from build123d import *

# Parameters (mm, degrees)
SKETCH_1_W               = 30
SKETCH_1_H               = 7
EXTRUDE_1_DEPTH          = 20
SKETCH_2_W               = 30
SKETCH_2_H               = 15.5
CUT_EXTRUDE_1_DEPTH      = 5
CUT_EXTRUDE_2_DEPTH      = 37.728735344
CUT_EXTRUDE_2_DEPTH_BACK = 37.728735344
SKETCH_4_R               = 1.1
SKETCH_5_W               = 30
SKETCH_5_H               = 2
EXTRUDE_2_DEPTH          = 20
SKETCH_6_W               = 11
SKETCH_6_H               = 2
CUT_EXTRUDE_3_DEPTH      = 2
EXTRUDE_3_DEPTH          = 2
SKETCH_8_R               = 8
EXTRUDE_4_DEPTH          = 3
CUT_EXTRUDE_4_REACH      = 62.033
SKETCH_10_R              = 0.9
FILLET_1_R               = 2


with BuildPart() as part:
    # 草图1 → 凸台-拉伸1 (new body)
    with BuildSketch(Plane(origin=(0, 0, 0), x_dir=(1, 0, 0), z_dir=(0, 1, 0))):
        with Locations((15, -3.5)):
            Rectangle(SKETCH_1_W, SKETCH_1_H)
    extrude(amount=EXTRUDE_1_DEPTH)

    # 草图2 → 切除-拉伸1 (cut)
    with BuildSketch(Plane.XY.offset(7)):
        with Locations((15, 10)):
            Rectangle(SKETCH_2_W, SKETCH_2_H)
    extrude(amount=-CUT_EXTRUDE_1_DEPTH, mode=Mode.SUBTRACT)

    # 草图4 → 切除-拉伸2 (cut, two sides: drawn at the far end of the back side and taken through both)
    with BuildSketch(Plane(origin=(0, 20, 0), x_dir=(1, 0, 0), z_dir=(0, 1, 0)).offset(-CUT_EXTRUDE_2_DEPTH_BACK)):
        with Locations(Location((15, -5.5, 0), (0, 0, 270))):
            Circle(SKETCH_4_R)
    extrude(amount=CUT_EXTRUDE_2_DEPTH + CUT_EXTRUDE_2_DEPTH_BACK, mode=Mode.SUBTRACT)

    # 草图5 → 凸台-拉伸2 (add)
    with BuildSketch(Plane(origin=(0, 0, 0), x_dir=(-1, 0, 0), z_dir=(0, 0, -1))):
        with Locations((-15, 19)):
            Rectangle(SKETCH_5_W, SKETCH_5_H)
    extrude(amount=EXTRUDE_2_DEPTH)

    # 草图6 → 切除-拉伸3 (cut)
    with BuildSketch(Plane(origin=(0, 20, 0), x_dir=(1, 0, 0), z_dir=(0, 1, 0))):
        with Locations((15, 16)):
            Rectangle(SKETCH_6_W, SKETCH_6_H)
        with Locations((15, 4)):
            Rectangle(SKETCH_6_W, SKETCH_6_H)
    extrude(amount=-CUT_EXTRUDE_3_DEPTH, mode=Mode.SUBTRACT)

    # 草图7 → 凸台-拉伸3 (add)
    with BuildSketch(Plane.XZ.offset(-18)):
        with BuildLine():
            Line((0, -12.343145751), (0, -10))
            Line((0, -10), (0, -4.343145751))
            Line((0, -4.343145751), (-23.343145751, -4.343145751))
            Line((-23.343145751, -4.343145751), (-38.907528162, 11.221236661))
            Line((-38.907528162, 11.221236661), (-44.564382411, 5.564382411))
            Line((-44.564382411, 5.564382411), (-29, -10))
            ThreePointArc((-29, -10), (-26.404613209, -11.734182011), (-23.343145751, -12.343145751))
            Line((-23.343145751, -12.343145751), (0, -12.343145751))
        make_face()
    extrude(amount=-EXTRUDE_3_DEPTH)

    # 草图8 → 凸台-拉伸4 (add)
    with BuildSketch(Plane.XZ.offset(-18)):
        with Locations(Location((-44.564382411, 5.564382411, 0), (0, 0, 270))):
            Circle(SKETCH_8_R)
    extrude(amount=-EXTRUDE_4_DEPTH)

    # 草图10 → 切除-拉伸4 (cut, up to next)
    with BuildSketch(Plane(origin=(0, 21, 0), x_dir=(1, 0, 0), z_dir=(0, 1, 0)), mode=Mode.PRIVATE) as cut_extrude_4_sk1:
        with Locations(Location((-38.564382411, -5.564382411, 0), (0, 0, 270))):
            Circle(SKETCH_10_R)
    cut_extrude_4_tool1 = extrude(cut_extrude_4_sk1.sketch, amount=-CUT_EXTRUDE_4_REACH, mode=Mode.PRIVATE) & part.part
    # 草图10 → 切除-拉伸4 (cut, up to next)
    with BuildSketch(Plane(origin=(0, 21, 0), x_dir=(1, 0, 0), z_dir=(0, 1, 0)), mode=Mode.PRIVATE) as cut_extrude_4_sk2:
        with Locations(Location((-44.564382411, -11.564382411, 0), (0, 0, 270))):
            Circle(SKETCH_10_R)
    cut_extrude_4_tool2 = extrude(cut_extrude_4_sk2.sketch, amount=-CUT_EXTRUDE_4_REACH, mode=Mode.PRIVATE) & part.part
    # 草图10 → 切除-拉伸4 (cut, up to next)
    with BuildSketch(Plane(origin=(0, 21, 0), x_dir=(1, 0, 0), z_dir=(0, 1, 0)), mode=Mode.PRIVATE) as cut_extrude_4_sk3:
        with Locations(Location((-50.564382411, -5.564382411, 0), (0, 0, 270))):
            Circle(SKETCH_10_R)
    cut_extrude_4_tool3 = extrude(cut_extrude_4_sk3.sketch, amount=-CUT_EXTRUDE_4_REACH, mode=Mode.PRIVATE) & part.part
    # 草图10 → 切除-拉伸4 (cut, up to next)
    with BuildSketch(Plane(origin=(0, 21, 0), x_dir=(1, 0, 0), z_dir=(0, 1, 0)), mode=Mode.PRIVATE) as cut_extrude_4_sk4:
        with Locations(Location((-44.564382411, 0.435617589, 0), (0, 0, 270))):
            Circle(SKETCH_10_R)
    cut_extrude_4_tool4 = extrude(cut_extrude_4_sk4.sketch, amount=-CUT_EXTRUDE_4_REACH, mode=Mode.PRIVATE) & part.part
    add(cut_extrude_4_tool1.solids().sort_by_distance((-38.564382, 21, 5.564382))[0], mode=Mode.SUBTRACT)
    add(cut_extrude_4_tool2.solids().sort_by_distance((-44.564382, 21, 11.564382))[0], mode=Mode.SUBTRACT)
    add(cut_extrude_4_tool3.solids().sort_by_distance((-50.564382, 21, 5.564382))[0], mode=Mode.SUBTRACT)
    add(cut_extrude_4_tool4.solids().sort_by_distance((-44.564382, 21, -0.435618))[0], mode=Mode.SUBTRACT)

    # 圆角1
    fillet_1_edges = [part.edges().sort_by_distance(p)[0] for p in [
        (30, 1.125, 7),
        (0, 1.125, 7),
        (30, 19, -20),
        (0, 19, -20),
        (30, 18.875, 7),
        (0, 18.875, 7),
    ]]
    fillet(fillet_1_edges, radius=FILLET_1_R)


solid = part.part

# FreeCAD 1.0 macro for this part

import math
import FreeCAD as App
import Part
import Sketcher
Q = App.Units.Quantity


def edges_at(feature, points):
    """Names of the edges that pass closest to the given points."""
    edges = feature.Shape.Edges
    near = lambda p: min(range(len(edges)), key=lambda i: edges[i].distToShape(Part.Vertex(*p))[0])
    return sorted({f"Edge{near(p) + 1}" for p in points})


def add_polygon(sketch, points):
    """Adds a closed chain of lines whose ends are joined by coincident constraints."""
    first, n = sketch.GeometryCount, len(points)
    for a, b in zip(points, points[1:] + points[:1]):
        sketch.addGeometry(Part.LineSegment(App.Vector(*a, 0), App.Vector(*b, 0)), False)
    for i in range(n):
        sketch.addConstraint(Sketcher.Constraint("Coincident", first + i, 2, first + (i + 1) % n, 1))

doc = App.newDocument("Part")
body = doc.addObject("PartDesign::Body", "Body")

# Sketch on XZ plane
sketch1 = body.newObject("Sketcher::SketchObject", "Sketch")
sketch1.AttachmentSupport = (doc.getObject("XZ_Plane"), [""])
sketch1.MapMode = "FlatFace"
add_polygon(sketch1, [(0, 0), (0, 7), (30, 7), (30, 0)])  # lines 0-3
sketch1.addConstraint([
    Sketcher.Constraint("Vertical", 0),
    Sketcher.Constraint("Horizontal", 1),
    Sketcher.Constraint("Vertical", 2),
    Sketcher.Constraint("Horizontal", 3),
    Sketcher.Constraint("Coincident", 3, 2, -1, 1),
    Sketcher.Constraint("DistanceX", 1, 1, 1, 2, 30.0),
    Sketcher.Constraint("DistanceY", 0, 1, 0, 2, 7.0),
])
pad1 = body.newObject("PartDesign::Pad", "Pad")
pad1.Profile = sketch1
pad1.Length = 20
pad1.Reversed = True

# Sketch on XY plane
sketch2 = body.newObject("Sketcher::SketchObject", "Sketch001")
sketch2.AttachmentSupport = (doc.getObject("XY_Plane"), [""])
sketch2.MapMode = "FlatFace"
sketch2.AttachmentOffset = App.Placement(App.Vector(0, 0, 7), App.Rotation())
add_polygon(sketch2, [(0, 17.75), (0, 2.25), (30, 2.25), (30, 17.75)])  # lines 0-3
sketch2.addConstraint([
    Sketcher.Constraint("Vertical", 0),
    Sketcher.Constraint("Horizontal", 1),
    Sketcher.Constraint("Vertical", 2),
    Sketcher.Constraint("Horizontal", 3),
    Sketcher.Constraint("PointOnObject", 0, 2, -2),
    Sketcher.Constraint("DistanceX", 1, 1, 1, 2, 30.0),
    Sketcher.Constraint("DistanceY", 0, 2, 0, 1, 15.5),
    Sketcher.Constraint("DistanceY", -1, 1, 0, 2, 2.25),
])
pocket1 = body.newObject("PartDesign::Pocket", "Pocket")
pocket1.Profile = sketch2
pocket1.Length = 5

# Sketch on XZ plane
sketch3 = body.newObject("Sketcher::SketchObject", "Sketch002")
sketch3.AttachmentSupport = (doc.getObject("XZ_Plane"), [""])
sketch3.MapMode = "FlatFace"
sketch3.AttachmentOffset = App.Placement(App.Vector(0, 0, -20), App.Rotation())
sketch3.addGeometry(Part.Circle(App.Vector(15, 5.5, 0), App.Vector(0, 0, 1), 1.1), False)
sketch3.addConstraint([
    Sketcher.Constraint("Diameter", 0, 2.2),
    Sketcher.Constraint("DistanceX", -1, 1, 0, 3, 15.0),
    Sketcher.Constraint("DistanceY", -1, 1, 0, 3, 5.5),
])
pocket2 = body.newObject("PartDesign::Pocket", "Pocket001")
pocket2.Profile = sketch3
pocket2.Type = "ThroughAll"
pocket2.Midplane = True

# Sketch on XY plane
sketch4 = body.newObject("Sketcher::SketchObject", "Sketch003")
sketch4.AttachmentSupport = (doc.getObject("XY_Plane"), [""])
sketch4.MapMode = "FlatFace"
add_polygon(sketch4, [(30, 20), (30, 18), (0, 18), (0, 20)])  # lines 0-3
sketch4.addConstraint([
    Sketcher.Constraint("Vertical", 0),
    Sketcher.Constraint("Horizontal", 1),
    Sketcher.Constraint("Vertical", 2),
    Sketcher.Constraint("Horizontal", 3),
    Sketcher.Constraint("PointOnObject", 1, 2, -2),
    Sketcher.Constraint("DistanceX", 1, 2, 1, 1, 30.0),
    Sketcher.Constraint("DistanceY", 0, 2, 0, 1, 2.0),
    Sketcher.Constraint("DistanceY", -1, 1, 0, 2, 18.0),
])
pad2 = body.newObject("PartDesign::Pad", "Pad001")
pad2.Profile = sketch4
pad2.Length = 20
pad2.Reversed = True

# Sketch on XZ plane
sketch5 = body.newObject("Sketcher::SketchObject", "Sketch004")
sketch5.AttachmentSupport = (doc.getObject("XZ_Plane"), [""])
sketch5.MapMode = "FlatFace"
sketch5.AttachmentOffset = App.Placement(App.Vector(0, 0, -20), App.Rotation())
add_polygon(sketch5, [(9.5, -17), (9.5, -15), (20.5, -15), (20.5, -17)])  # lines 0-3
add_polygon(sketch5, [(9.5, -5), (9.5, -3), (20.5, -3), (20.5, -5)])  # lines 4-7
sketch5.addConstraint([
    Sketcher.Constraint("Vertical", 0),
    Sketcher.Constraint("Horizontal", 1),
    Sketcher.Constraint("Vertical", 2),
    Sketcher.Constraint("Horizontal", 3),
    Sketcher.Constraint("Vertical", 4),
    Sketcher.Constraint("Horizontal", 5),
    Sketcher.Constraint("Vertical", 6),
    Sketcher.Constraint("Horizontal", 7),
    Sketcher.Constraint("Vertical", 3, 2, 4, 2),
    Sketcher.Constraint("Vertical", 2, 2, 5, 2),
    Sketcher.Constraint("Equal", 2, 4),
    Sketcher.Constraint("DistanceX", 1, 1, 1, 2, 11.0),
    Sketcher.Constraint("DistanceY", 0, 1, 0, 2, 2.0),
    Sketcher.Constraint("DistanceY", 0, 2, -1, 1, 15.0),
    Sketcher.Constraint("DistanceY", 4, 2, -1, 1, 3.0),
    Sketcher.Constraint("DistanceX", -1, 1, 0, 2, 9.5),
])
pocket3 = body.newObject("PartDesign::Pocket", "Pocket002")
pocket3.Profile = sketch5
pocket3.Length = 2
pocket3.Reversed = True

# Sketch on XZ plane
sketch6 = body.newObject("Sketcher::SketchObject", "Sketch005")
sketch6.AttachmentSupport = (doc.getObject("XZ_Plane"), [""])
sketch6.MapMode = "FlatFace"
sketch6.AttachmentOffset = App.Placement(App.Vector(0, 0, -18), App.Rotation())
sketch6.addGeometry([
    Part.LineSegment(App.Vector(0, -12.343146, 0), App.Vector(0, -4.343146, 0)),  # 0
    Part.LineSegment(App.Vector(0, -4.343146, 0), App.Vector(-23.343146, -4.343146, 0)),  # 1
    Part.LineSegment(App.Vector(-23.343146, -4.343146, 0), App.Vector(-38.907528, 11.221237, 0)),  # 2
    Part.LineSegment(App.Vector(-38.907528, 11.221237, 0), App.Vector(-44.564382, 5.564382, 0)),  # 3
    Part.LineSegment(App.Vector(-44.564382, 5.564382, 0), App.Vector(-29, -10, 0)),  # 4
    Part.ArcOfCircle(Part.Circle(App.Vector(-23.343146, -4.343146, 0), App.Vector(0, 0, 1), 8), math.radians(-135), math.radians(-90)),  # 5
    Part.LineSegment(App.Vector(-23.343146, -12.343146, 0), App.Vector(0, -12.343146, 0)),  # 6
], False)
sketch6.addConstraint([
    Sketcher.Constraint("Coincident", 0, 2, 1, 1),
    Sketcher.Constraint("Coincident", 1, 2, 2, 1),
    Sketcher.Constraint("Coincident", 2, 2, 3, 1),
    Sketcher.Constraint("Coincident", 3, 2, 4, 1),
    Sketcher.Constraint("Tangent", 4, 2, 5, 1),
    Sketcher.Constraint("Tangent", 5, 2, 6, 1),
    Sketcher.Constraint("Coincident", 6, 2, 0, 1),
    Sketcher.Constraint("Vertical", 0),
    Sketcher.Constraint("Horizontal", 1),
    Sketcher.Constraint("Horizontal", 6),
    Sketcher.Constraint("Coincident", 1, 2, 5, 3),
    Sketcher.Constraint("PointOnObject", 0, 2, -2),
    Sketcher.Constraint("Perpendicular", 2, 3),
    Sketcher.Constraint("Perpendicular", 3, 4),
    Sketcher.Constraint("Radius", 5, 8.0),
    Sketcher.Constraint("Angle", 2, Q("135 deg")),
    Sketcher.Constraint("DistanceX", 4, 2, -1, 1, 29.0),
    Sketcher.Constraint("DistanceY", 4, 2, -1, 1, 10.0),
    Sketcher.Constraint("Distance", 2, 22.011361),
])
pad3 = body.newObject("PartDesign::Pad", "Pad002")
pad3.Profile = sketch6
pad3.Length = 2
pad3.Reversed = True

# Sketch on XZ plane
sketch7 = body.newObject("Sketcher::SketchObject", "Sketch006")
sketch7.AttachmentSupport = (doc.getObject("XZ_Plane"), [""])
sketch7.MapMode = "FlatFace"
sketch7.AttachmentOffset = App.Placement(App.Vector(0, 0, -18), App.Rotation())
sketch7.addGeometry(Part.Circle(App.Vector(-44.564382, 5.564382, 0), App.Vector(0, 0, 1), 8), False)
sketch7.addConstraint([
    Sketcher.Constraint("Diameter", 0, 16.0),
    Sketcher.Constraint("DistanceX", 0, 3, -1, 1, 44.564382),
    Sketcher.Constraint("DistanceY", -1, 1, 0, 3, 5.564382),
])
pad4 = body.newObject("PartDesign::Pad", "Pad003")
pad4.Profile = sketch7
pad4.Length = 3
pad4.Reversed = True

# Sketch on XZ plane
sketch8 = body.newObject("Sketcher::SketchObject", "Sketch007")
sketch8.AttachmentSupport = (doc.getObject("XZ_Plane"), [""])
sketch8.MapMode = "FlatFace"
sketch8.AttachmentOffset = App.Placement(App.Vector(0, 0, -21), App.Rotation())
sketch8.addGeometry(Part.Circle(App.Vector(-38.564382, 5.564382, 0), App.Vector(0, 0, 1), 0.9), False)
sketch8.addConstraint([
    Sketcher.Constraint("Diameter", 0, 1.8),
    Sketcher.Constraint("DistanceX", 0, 3, -1, 1, 38.564382),
    Sketcher.Constraint("DistanceY", -1, 1, 0, 3, 5.564382),
])
pocket4 = body.newObject("PartDesign::Pocket", "Pocket003")
pocket4.Profile = sketch8
pocket4.Type = "UpToFirst"
pocket4.Reversed = True

# Sketch on XZ plane
sketch9 = body.newObject("Sketcher::SketchObject", "Sketch008")
sketch9.AttachmentSupport = (doc.getObject("XZ_Plane"), [""])
sketch9.MapMode = "FlatFace"
sketch9.AttachmentOffset = App.Placement(App.Vector(0, 0, -21), App.Rotation())
sketch9.addGeometry(Part.Circle(App.Vector(-44.564382, 11.564382, 0), App.Vector(0, 0, 1), 0.9), False)
sketch9.addConstraint([
    Sketcher.Constraint("Diameter", 0, 1.8),
    Sketcher.Constraint("DistanceX", 0, 3, -1, 1, 44.564382),
    Sketcher.Constraint("DistanceY", -1, 1, 0, 3, 11.564382),
])
pocket5 = body.newObject("PartDesign::Pocket", "Pocket004")
pocket5.Profile = sketch9
pocket5.Type = "UpToFirst"
pocket5.Reversed = True

# Sketch on XZ plane
sketch10 = body.newObject("Sketcher::SketchObject", "Sketch009")
sketch10.AttachmentSupport = (doc.getObject("XZ_Plane"), [""])
sketch10.MapMode = "FlatFace"
sketch10.AttachmentOffset = App.Placement(App.Vector(0, 0, -21), App.Rotation())
sketch10.addGeometry(Part.Circle(App.Vector(-50.564382, 5.564382, 0), App.Vector(0, 0, 1), 0.9), False)
sketch10.addConstraint([
    Sketcher.Constraint("Diameter", 0, 1.8),
    Sketcher.Constraint("DistanceX", 0, 3, -1, 1, 50.564382),
    Sketcher.Constraint("DistanceY", -1, 1, 0, 3, 5.564382),
])
pocket6 = body.newObject("PartDesign::Pocket", "Pocket005")
pocket6.Profile = sketch10
pocket6.Type = "UpToFirst"
pocket6.Reversed = True

# Sketch on XZ plane
sketch11 = body.newObject("Sketcher::SketchObject", "Sketch010")
sketch11.AttachmentSupport = (doc.getObject("XZ_Plane"), [""])
sketch11.MapMode = "FlatFace"
sketch11.AttachmentOffset = App.Placement(App.Vector(0, 0, -21), App.Rotation())
sketch11.addGeometry(Part.Circle(App.Vector(-44.564382, -0.435618, 0), App.Vector(0, 0, 1), 0.9), False)
sketch11.addConstraint([
    Sketcher.Constraint("Diameter", 0, 1.8),
    Sketcher.Constraint("DistanceX", 0, 3, -1, 1, 44.564382),
    Sketcher.Constraint("DistanceY", 0, 3, -1, 1, 0.435618),
])
pocket7 = body.newObject("PartDesign::Pocket", "Pocket006")
pocket7.Profile = sketch11
pocket7.Type = "UpToFirst"
pocket7.Reversed = True
doc.recompute()

fillet = body.newObject("PartDesign::Fillet", "Fillet")
fillet.Base = (pocket7, edges_at(pocket7, [
    (30, 1.125, 7),
    (0, 1.125, 7),
    (30, 19, -20),
    (0, 19, -20),
    (30, 18.875, 7),
    (0, 18.875, 7),
]))
fillet.Radius = 2

doc.recompute()
